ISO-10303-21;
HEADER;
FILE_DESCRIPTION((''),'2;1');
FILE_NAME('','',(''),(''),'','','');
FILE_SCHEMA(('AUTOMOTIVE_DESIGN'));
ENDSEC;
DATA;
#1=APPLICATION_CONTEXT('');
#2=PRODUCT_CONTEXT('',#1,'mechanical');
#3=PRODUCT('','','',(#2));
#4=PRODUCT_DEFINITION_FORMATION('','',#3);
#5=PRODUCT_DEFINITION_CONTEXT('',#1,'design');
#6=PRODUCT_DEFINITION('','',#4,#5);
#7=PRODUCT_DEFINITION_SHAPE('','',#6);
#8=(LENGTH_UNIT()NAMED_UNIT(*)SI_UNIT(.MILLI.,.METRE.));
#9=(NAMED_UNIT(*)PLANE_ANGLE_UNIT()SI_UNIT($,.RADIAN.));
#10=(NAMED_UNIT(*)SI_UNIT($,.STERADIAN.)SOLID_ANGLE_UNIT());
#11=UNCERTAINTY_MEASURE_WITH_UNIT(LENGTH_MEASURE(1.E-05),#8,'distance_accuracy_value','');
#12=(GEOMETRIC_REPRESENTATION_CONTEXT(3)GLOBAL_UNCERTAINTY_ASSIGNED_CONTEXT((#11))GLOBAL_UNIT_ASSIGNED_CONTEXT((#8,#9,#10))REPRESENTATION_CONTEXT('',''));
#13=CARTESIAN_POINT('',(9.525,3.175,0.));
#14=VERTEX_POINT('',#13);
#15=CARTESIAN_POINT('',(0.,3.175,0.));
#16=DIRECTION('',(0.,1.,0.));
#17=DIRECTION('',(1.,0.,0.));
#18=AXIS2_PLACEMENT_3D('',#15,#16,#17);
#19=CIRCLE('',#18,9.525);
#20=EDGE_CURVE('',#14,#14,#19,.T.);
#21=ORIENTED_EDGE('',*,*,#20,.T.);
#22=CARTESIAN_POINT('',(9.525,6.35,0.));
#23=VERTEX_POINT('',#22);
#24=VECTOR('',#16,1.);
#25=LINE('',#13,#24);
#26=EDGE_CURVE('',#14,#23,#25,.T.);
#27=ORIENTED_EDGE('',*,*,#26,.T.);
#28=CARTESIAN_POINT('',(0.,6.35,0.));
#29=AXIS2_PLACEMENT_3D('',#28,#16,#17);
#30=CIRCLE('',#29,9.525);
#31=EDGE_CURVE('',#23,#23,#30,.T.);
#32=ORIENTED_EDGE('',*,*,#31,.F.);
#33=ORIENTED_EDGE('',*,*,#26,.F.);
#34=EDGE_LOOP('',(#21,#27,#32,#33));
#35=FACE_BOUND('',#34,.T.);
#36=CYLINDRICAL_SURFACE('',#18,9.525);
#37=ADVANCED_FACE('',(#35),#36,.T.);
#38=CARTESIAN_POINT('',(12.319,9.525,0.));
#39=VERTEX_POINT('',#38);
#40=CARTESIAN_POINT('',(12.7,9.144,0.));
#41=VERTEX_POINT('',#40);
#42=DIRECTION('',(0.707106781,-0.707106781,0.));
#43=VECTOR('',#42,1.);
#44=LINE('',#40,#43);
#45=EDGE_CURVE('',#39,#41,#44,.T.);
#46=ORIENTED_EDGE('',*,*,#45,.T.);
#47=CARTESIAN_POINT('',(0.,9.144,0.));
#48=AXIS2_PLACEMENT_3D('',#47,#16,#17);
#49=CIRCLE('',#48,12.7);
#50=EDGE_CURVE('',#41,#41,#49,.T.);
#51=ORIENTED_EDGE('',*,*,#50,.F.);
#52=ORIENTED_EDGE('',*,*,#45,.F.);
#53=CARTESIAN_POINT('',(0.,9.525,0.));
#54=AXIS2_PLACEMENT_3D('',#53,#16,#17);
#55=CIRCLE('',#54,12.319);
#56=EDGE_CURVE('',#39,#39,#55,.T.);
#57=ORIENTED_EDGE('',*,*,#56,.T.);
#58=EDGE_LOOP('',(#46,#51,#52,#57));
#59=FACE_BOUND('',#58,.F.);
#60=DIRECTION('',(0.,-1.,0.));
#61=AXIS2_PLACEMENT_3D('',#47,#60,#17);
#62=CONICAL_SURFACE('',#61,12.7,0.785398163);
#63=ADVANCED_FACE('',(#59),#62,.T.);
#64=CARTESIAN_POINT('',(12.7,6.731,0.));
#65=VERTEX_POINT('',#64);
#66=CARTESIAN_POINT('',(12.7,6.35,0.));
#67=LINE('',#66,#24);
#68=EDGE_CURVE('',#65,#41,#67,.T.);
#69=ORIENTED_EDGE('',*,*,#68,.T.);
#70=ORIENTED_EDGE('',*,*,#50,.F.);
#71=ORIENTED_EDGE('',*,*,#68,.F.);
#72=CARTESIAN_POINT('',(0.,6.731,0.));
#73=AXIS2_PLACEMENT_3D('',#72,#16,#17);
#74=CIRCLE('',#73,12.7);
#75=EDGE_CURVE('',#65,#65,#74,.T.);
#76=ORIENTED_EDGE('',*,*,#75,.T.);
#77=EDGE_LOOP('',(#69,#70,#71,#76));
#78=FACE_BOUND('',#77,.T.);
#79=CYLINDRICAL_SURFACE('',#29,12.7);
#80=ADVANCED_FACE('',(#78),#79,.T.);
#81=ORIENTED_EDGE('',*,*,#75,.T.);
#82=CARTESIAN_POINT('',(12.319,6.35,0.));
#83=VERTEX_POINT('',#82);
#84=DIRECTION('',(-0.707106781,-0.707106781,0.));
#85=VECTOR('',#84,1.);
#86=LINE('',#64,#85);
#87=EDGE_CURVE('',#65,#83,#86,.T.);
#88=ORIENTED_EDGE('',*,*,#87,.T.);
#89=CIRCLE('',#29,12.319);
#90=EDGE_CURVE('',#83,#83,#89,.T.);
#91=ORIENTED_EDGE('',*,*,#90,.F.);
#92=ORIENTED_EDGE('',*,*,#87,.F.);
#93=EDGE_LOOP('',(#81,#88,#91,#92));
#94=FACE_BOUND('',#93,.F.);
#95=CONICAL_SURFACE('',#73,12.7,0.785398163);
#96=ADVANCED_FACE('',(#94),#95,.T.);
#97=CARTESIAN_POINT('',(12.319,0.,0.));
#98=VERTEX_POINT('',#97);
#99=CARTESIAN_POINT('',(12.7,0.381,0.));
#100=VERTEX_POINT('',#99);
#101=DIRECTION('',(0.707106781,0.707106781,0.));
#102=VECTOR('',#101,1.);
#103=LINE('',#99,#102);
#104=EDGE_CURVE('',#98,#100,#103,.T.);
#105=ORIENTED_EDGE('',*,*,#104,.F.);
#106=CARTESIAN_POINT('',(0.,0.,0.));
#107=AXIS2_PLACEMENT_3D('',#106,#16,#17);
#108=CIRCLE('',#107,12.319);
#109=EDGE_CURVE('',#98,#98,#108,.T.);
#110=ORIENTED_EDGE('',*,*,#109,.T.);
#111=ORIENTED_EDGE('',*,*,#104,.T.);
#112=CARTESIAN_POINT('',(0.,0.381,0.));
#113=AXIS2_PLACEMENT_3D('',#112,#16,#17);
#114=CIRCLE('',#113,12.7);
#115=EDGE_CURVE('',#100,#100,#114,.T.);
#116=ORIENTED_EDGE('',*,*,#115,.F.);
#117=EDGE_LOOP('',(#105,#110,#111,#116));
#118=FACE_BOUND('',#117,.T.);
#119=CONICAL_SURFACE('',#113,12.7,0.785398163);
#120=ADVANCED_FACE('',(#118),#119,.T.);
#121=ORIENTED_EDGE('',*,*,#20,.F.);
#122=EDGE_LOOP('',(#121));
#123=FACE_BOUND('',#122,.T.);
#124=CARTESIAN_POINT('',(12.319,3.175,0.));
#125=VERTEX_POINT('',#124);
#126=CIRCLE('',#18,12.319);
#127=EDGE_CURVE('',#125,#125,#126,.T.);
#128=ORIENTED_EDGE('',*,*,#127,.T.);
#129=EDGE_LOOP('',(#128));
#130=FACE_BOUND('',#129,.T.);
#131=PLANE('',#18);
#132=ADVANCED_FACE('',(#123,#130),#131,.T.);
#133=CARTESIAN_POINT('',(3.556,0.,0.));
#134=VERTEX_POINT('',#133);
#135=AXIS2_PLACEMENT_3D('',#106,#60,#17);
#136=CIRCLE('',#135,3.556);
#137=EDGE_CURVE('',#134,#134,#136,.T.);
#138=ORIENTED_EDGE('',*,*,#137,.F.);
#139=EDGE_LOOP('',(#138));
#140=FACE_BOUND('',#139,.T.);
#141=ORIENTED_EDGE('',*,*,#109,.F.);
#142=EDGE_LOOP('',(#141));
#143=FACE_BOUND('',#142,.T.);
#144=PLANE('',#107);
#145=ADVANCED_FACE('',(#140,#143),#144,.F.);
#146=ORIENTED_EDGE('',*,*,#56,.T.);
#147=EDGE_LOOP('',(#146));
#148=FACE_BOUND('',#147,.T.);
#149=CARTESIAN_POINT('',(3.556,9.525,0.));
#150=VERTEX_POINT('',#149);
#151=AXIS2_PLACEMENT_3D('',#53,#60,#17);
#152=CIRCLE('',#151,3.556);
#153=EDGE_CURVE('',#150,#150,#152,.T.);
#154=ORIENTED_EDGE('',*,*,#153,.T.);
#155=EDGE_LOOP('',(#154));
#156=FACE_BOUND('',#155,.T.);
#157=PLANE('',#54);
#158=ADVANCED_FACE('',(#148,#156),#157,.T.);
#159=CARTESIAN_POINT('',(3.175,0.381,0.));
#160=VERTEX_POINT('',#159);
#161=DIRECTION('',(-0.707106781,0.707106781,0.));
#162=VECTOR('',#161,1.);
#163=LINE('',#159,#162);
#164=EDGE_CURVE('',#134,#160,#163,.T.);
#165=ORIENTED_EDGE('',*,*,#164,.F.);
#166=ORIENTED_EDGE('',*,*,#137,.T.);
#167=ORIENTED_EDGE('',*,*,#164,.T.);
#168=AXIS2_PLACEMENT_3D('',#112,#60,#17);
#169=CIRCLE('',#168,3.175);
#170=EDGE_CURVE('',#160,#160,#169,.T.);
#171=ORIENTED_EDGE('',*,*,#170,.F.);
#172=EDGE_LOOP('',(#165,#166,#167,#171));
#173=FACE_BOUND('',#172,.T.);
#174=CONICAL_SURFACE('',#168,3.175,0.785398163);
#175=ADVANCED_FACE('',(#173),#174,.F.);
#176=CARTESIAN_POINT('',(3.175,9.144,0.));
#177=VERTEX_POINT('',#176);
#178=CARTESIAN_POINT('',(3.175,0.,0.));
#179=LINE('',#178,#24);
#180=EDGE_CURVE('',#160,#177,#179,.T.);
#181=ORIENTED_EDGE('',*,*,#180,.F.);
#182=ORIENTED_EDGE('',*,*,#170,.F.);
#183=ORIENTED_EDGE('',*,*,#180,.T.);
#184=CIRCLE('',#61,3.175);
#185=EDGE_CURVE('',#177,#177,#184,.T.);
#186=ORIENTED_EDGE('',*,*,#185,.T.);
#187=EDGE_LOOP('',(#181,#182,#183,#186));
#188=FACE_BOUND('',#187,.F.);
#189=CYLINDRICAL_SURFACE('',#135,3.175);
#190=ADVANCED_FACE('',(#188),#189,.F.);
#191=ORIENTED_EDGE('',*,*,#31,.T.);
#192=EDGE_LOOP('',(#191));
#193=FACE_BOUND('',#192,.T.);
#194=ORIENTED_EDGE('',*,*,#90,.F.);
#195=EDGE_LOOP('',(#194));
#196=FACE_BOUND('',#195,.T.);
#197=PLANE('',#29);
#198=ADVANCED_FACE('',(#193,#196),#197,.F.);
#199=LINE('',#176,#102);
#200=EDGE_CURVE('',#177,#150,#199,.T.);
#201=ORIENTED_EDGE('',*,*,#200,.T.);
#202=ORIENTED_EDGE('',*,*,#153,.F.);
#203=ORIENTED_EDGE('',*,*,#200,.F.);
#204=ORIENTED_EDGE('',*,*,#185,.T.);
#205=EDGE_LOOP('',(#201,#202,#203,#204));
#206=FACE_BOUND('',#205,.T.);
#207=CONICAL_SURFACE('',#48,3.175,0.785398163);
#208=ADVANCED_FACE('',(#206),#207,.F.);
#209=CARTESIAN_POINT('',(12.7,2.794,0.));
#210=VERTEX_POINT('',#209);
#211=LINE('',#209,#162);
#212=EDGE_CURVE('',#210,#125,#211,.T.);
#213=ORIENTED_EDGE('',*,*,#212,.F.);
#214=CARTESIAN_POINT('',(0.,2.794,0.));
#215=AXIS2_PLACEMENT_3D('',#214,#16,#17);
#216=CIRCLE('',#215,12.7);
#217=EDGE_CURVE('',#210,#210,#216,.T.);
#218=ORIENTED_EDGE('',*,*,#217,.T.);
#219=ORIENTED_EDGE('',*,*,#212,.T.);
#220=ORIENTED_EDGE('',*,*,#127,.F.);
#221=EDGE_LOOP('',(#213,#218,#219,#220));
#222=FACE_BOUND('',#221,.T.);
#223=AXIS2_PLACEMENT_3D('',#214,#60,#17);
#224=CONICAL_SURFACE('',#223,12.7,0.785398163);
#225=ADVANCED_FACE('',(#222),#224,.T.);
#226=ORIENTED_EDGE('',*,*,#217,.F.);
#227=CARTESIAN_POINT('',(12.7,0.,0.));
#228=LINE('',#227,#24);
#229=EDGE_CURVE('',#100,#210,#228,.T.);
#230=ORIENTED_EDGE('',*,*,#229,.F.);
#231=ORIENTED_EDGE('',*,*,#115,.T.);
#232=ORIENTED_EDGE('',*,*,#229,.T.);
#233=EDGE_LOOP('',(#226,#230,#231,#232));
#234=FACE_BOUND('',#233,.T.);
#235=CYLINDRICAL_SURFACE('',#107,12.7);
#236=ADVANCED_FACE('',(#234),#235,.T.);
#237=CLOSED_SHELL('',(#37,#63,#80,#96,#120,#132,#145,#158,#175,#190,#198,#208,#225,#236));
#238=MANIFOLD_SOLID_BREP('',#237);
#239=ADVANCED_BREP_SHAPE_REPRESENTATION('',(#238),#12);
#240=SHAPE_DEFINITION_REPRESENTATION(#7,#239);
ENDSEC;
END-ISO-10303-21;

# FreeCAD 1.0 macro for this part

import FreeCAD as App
import Part
import Sketcher
Q = App.Units.Quantity


def edges_at(feature, points):
    """Names of the edges that pass closest to the given points."""
    edges = feature.Shape.Edges
    near = lambda p: min(range(len(edges)), key=lambda i: edges[i].distToShape(Part.Vertex(*p))[0])
    return sorted({f"Edge{near(p) + 1}" for p in points})

doc = App.newDocument("Part")
body = doc.addObject("PartDesign::Body", "Body")

# Sketch on XY plane
sketch1 = body.newObject("Sketcher::SketchObject", "Sketch")
sketch1.AttachmentSupport = (doc.getObject("XY_Plane"), [""])
sketch1.MapMode = "FlatFace"
sketch1.addGeometry([
    Part.LineSegment(App.Vector(0, 9.5, 0), App.Vector(0, 0, 0)),  # 0
    Part.LineSegment(App.Vector(0, 0, 0), App.Vector(12.7, 0, 0)),  # 1
    Part.LineSegment(App.Vector(12.7, 0, 0), App.Vector(12.7, 3.2, 0)),  # 2
    Part.LineSegment(App.Vector(12.7, 3.2, 0), App.Vector(9.5, 3.2, 0)),  # 3
    Part.LineSegment(App.Vector(9.5, 3.2, 0), App.Vector(9.5, 6.3, 0)),  # 4
    Part.LineSegment(App.Vector(9.5, 6.3, 0), App.Vector(12.7, 6.3, 0)),  # 5
    Part.LineSegment(App.Vector(12.7, 6.3, 0), App.Vector(12.7, 9.5, 0)),  # 6
    Part.LineSegment(App.Vector(12.7, 9.5, 0), App.Vector(0, 9.5, 0)),  # 7
], False)
sketch1.addConstraint([
    Sketcher.Constraint("Coincident", 0, 2, 1, 1),
    Sketcher.Constraint("Coincident", 1, 2, 2, 1),
    Sketcher.Constraint("Coincident", 2, 2, 3, 1),
    Sketcher.Constraint("Coincident", 3, 2, 4, 1),
    Sketcher.Constraint("Coincident", 4, 2, 5, 1),
    Sketcher.Constraint("Coincident", 5, 2, 6, 1),
    Sketcher.Constraint("Coincident", 6, 2, 7, 1),
    Sketcher.Constraint("Coincident", 7, 2, 0, 1),
    Sketcher.Constraint("Vertical", 0),
    Sketcher.Constraint("Horizontal", 1),
    Sketcher.Constraint("Vertical", 2),
    Sketcher.Constraint("Horizontal", 3),
    Sketcher.Constraint("Vertical", 4),
    Sketcher.Constraint("Horizontal", 5),
    Sketcher.Constraint("Vertical", 6),
    Sketcher.Constraint("Horizontal", 7),
    Sketcher.Constraint("Coincident", 0, 2, -1, 1),
    Sketcher.Constraint("Vertical", 2, 2, 5, 2),
    Sketcher.Constraint("Equal", 5, 2),
    Sketcher.Constraint("Equal", 2, 4),
    Sketcher.Constraint("Equal", 4, 6),
    Sketcher.Constraint("DistanceX", 1, 1, 1, 2, Q("0.5 in")),
    Sketcher.Constraint("DistanceX", 3, 2, 3, 1, Q("0.125 in")),
])
revolution = body.newObject("PartDesign::Revolution", "Revolution")
revolution.Profile = sketch1
revolution.ReferenceAxis = (sketch1, ["V_Axis"])
revolution.Angle = 360

# Sketch on XZ plane
sketch2 = body.newObject("Sketcher::SketchObject", "Sketch001")
sketch2.AttachmentSupport = (doc.getObject("XZ_Plane"), [""])
sketch2.MapMode = "FlatFace"
sketch2.addGeometry(Part.Circle(App.Vector(0, 0, 0), App.Vector(0, 0, 1), 3.2), False)
sketch2.addConstraint([
    Sketcher.Constraint("Coincident", 0, 3, -1, 1),
    Sketcher.Constraint("Diameter", 0, Q("0.25 in")),
])
pocket1 = body.newObject("PartDesign::Pocket", "Pocket")
pocket1.Profile = sketch2
pocket1.Type = "ThroughAll"
doc.recompute()

chamfer = body.newObject("PartDesign::Chamfer", "Chamfer")
chamfer.Base = (pocket1, edges_at(pocket1, [
    (-3.175, 0, 0),
    (-3.175, 9.525, 0),
    (-12.7, 0, 0),
    (-12.7, 3.175, 0),
    (-12.7, 6.35, 0),
    (-12.7, 9.525, 0),
]))
chamfer.Size = Q("0.015 in")

doc.recompute()
